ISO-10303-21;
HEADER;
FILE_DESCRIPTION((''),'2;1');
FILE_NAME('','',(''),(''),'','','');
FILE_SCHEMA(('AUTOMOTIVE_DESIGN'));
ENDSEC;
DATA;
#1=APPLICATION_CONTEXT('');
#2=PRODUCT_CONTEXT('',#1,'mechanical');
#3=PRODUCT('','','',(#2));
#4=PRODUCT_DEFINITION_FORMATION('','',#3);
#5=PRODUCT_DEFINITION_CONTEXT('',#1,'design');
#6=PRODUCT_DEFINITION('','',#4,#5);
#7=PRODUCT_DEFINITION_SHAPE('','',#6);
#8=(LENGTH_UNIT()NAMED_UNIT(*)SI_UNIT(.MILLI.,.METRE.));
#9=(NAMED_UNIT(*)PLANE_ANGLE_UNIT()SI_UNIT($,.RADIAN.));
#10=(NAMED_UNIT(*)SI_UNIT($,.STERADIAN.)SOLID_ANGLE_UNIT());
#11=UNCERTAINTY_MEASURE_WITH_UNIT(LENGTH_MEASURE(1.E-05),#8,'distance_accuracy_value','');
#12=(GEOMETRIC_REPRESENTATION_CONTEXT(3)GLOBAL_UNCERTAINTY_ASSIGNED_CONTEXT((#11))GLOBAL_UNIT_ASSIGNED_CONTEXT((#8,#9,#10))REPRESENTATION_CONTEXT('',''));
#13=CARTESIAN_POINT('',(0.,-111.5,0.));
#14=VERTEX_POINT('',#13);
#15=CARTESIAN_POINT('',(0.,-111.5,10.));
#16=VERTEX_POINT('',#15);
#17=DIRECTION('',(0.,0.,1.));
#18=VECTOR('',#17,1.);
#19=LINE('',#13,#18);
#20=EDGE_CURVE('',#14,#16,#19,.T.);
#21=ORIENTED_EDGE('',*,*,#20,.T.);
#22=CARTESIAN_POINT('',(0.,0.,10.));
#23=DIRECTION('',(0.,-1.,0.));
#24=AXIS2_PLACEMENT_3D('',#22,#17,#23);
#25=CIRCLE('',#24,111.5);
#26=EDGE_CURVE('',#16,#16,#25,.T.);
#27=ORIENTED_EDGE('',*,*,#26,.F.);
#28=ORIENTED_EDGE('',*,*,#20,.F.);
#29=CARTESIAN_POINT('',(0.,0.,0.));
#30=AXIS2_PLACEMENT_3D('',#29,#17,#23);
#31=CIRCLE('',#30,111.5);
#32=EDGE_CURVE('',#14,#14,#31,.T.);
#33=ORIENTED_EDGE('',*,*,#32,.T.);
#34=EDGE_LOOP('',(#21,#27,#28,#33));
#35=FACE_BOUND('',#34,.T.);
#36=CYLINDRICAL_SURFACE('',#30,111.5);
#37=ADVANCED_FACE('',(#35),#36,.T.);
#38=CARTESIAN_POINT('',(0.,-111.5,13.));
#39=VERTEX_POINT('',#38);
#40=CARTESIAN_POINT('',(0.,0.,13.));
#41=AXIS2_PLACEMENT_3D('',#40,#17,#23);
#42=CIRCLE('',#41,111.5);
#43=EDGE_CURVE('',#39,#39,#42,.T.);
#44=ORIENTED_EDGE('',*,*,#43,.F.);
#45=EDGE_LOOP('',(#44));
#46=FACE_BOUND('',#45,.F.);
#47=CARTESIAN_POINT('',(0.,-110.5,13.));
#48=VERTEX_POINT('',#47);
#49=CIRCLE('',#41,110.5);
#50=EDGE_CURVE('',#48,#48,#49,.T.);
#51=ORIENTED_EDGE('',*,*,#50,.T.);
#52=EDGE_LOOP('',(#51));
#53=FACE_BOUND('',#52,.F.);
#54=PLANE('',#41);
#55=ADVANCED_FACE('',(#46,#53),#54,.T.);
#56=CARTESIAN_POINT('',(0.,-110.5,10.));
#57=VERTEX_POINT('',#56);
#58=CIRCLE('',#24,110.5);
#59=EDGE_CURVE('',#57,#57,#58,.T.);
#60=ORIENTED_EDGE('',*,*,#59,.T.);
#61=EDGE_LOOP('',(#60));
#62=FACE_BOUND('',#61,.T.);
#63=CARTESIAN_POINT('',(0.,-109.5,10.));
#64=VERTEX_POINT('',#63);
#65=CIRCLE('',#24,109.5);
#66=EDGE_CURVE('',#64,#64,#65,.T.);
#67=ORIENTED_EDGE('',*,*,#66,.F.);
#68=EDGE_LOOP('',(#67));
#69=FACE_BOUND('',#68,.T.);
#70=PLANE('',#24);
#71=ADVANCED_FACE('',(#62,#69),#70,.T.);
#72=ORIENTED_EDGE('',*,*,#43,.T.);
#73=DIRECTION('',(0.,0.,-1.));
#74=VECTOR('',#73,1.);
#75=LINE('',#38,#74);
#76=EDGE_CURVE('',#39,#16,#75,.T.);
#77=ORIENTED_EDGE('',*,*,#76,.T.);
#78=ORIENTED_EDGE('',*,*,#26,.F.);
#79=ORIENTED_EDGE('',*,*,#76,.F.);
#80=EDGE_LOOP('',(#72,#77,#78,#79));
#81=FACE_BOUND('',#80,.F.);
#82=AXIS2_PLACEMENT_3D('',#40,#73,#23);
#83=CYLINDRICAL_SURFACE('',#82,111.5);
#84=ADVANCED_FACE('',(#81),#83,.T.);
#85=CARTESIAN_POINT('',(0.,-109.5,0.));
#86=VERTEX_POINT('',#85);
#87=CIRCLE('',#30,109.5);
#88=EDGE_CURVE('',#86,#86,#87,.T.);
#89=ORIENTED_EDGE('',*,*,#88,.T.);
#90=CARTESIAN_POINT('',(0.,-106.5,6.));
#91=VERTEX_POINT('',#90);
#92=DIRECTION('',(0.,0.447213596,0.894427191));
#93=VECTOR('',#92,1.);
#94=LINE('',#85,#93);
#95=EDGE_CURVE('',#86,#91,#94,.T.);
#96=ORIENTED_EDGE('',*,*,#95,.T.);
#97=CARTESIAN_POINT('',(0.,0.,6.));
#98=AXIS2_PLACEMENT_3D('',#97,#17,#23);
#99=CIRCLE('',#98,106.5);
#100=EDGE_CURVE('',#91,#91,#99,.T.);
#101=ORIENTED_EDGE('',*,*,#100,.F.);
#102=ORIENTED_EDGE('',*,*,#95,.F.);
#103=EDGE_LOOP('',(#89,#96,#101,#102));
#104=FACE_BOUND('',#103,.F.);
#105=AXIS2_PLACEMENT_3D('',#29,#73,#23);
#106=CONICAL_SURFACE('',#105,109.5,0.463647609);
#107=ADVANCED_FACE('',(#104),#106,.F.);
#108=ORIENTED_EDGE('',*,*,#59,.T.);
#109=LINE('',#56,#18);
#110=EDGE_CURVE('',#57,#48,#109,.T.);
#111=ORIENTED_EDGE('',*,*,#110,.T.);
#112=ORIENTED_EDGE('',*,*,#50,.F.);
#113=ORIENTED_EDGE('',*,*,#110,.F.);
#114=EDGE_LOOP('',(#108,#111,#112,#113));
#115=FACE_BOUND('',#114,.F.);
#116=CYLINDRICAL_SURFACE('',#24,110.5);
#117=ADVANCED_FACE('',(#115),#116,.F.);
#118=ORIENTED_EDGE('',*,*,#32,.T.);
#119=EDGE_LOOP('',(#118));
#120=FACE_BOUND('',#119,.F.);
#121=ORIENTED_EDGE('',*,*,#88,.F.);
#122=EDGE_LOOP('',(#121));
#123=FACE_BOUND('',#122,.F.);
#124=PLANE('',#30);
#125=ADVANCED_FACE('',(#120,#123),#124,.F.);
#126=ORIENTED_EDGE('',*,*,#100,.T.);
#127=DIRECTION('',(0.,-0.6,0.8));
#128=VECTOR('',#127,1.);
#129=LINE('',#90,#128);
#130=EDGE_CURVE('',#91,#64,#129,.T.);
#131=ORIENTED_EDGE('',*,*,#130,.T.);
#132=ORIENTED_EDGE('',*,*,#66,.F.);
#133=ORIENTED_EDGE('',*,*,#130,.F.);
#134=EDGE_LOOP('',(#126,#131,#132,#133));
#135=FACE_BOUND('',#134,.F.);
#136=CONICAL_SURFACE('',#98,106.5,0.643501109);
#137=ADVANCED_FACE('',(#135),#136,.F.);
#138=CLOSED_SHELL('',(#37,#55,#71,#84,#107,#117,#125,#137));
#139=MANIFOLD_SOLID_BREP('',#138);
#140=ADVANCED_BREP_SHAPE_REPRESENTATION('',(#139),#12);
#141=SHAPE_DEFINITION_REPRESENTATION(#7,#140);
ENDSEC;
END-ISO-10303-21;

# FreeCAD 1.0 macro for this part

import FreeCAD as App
import Part
import Sketcher
from FreeCAD import Vector
Q = App.Units.Quantity

doc = App.newDocument("Part")
body = doc.addObject("PartDesign::Body", "Body")

sketch1 = body.newObject("Sketcher::SketchObject", "Sketch")
sketch1.AttachmentSupport = (doc.getObject("YZ_Plane"), [""])
sketch1.MapMode = "FlatFace"
sketch1.addGeometry([
    Part.LineSegment(Vector(-111.5, 13, 0), Vector(-111.5, 0, 0)),
    Part.LineSegment(Vector(-111.5, 0, 0), Vector(-109.5, 0, 0)),
    Part.LineSegment(Vector(-109.5, 0, 0), Vector(-106.5, 6, 0)),
    Part.LineSegment(Vector(-106.5, 6, 0), Vector(-109.5, 10, 0)),
    Part.LineSegment(Vector(-109.5, 10, 0), Vector(-110.5, 10, 0)),
    Part.LineSegment(Vector(-110.5, 10, 0), Vector(-110.5, 13, 0)),
    Part.LineSegment(Vector(-110.5, 13, 0), Vector(-111.5, 13, 0)),
], False)
sketch1.addConstraint([
    Sketcher.Constraint("Coincident", 0, 2, 1, 1),
    Sketcher.Constraint("Coincident", 1, 2, 2, 1),
    Sketcher.Constraint("Coincident", 2, 2, 3, 1),
    Sketcher.Constraint("Coincident", 3, 2, 4, 1),
    Sketcher.Constraint("Coincident", 4, 2, 5, 1),
    Sketcher.Constraint("Coincident", 5, 2, 6, 1),
    Sketcher.Constraint("Coincident", 6, 2, 0, 1),
    Sketcher.Constraint("Vertical", 0),
    Sketcher.Constraint("Horizontal", 1),
    Sketcher.Constraint("Horizontal", 4),
    Sketcher.Constraint("Vertical", 5),
    Sketcher.Constraint("Horizontal", 6),
    Sketcher.Constraint("PointOnObject", 0, 2, -1),
    Sketcher.Constraint("Vertical", 1, 2, 3, 2),
    Sketcher.Constraint("Equal", 4, 6),
    Sketcher.Constraint("DistanceX", 1, 1, 1, 2, Q("2 mm")),
    Sketcher.Constraint("DistanceY", 5, 1, 5, 2, Q("3 mm")),
    Sketcher.Constraint("Distance", 3, Q("5 mm")),
    Sketcher.Constraint("DistanceY", -1, 1, 2, 2, Q("6 mm")),
    Sketcher.Constraint("DistanceY", -1, 1, 3, 2, Q("10 mm")),
    Sketcher.Constraint("DistanceX", 0, 2, -1, 1, Q("111.5 mm")),
])
revolution = body.newObject("PartDesign::Revolution", "Revolution")
revolution.Profile = sketch1
revolution.ReferenceAxis = (sketch1, ["V_Axis"])
revolution.Angle = 360

doc.recompute()
